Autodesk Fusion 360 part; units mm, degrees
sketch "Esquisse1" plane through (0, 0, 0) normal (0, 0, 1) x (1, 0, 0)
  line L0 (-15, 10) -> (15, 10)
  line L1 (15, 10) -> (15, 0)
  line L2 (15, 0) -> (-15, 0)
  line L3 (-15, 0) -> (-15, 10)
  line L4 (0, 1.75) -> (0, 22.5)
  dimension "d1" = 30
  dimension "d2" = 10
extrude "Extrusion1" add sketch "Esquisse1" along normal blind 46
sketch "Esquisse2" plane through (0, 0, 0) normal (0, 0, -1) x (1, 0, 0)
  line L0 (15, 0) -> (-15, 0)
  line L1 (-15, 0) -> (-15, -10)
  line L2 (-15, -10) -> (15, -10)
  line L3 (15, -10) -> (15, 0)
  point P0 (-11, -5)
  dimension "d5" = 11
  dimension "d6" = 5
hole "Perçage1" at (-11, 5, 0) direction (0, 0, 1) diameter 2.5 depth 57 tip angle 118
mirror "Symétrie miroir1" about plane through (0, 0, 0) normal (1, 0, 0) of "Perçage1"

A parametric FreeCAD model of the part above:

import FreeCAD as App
import Part
import Sketcher
Q = App.Units.Quantity


def add_polygon(sketch, points):
    """Adds a closed chain of lines whose ends are joined by coincident constraints."""
    first, n = sketch.GeometryCount, len(points)
    for a, b in zip(points, points[1:] + points[:1]):
        sketch.addGeometry(Part.LineSegment(App.Vector(*a, 0), App.Vector(*b, 0)), False)
    for i in range(n):
        sketch.addConstraint(Sketcher.Constraint("Coincident", first + i, 2, first + (i + 1) % n, 1))

doc = App.newDocument("Part")
body = doc.addObject("PartDesign::Body", "Body")

sketch1 = body.newObject("Sketcher::SketchObject", "Sketch")
sketch1.AttachmentSupport = (doc.getObject("XY_Plane"), [""])
sketch1.MapMode = "FlatFace"
add_polygon(sketch1, [(15, 10), (-15, 10), (-15, 0), (15, 0)])
sketch1.addConstraint(Sketcher.Constraint("Horizontal", 0))
sketch1.addConstraint(Sketcher.Constraint("Vertical", 1))
sketch1.addConstraint(Sketcher.Constraint("Horizontal", 2))
sketch1.addConstraint(Sketcher.Constraint("Vertical", 3))
sketch1.addConstraint(Sketcher.Constraint("Symmetric", 1, 2, 2, 2, -1, 1))
sketch1.addConstraint(Sketcher.Constraint("DistanceX", 0, 2, 0, 1, Q("30 mm")))
sketch1.addConstraint(Sketcher.Constraint("DistanceY", 1, 2, 1, 1, Q("10 mm")))
pad1 = body.newObject("PartDesign::Pad", "Pad")
pad1.Profile = sketch1
pad1.Length = 46

sketch2 = body.newObject("Sketcher::SketchObject", "Sketch001")
sketch2.AttachmentSupport = (doc.getObject("XY_Plane"), [""])
sketch2.MapMode = "FlatFace"
sketch2.addGeometry(Part.Circle(App.Vector(-11, 5, 0), App.Vector(0, 0, 1), 1.2), False)
sketch2.addConstraint(Sketcher.Constraint("Diameter", 0, Q("2.5 mm")))
sketch2.addConstraint(Sketcher.Constraint("DistanceX", 0, 3, -1, 1, Q("11 mm")))
sketch2.addConstraint(Sketcher.Constraint("DistanceY", -1, 1, 0, 3, Q("5 mm")))
doc.recompute()
hole = body.newObject("PartDesign::Hole", "Hole")
hole.Profile = sketch2
hole.ThreadType = "None"
hole.Diameter = 2.5
hole.DepthType = "Dimension"
hole.Depth = 57
hole.DrillPoint = "Angled"
hole.DrillPointAngle = 118
hole.Reversed = True
doc.recompute()

mirrored = body.newObject("PartDesign::Mirrored", "Mirrored")
mirrored.Originals = [hole]
mirrored.MirrorPlane = (doc.getObject("YZ_Plane"), [""])
body.Tip = mirrored

doc.recompute()
